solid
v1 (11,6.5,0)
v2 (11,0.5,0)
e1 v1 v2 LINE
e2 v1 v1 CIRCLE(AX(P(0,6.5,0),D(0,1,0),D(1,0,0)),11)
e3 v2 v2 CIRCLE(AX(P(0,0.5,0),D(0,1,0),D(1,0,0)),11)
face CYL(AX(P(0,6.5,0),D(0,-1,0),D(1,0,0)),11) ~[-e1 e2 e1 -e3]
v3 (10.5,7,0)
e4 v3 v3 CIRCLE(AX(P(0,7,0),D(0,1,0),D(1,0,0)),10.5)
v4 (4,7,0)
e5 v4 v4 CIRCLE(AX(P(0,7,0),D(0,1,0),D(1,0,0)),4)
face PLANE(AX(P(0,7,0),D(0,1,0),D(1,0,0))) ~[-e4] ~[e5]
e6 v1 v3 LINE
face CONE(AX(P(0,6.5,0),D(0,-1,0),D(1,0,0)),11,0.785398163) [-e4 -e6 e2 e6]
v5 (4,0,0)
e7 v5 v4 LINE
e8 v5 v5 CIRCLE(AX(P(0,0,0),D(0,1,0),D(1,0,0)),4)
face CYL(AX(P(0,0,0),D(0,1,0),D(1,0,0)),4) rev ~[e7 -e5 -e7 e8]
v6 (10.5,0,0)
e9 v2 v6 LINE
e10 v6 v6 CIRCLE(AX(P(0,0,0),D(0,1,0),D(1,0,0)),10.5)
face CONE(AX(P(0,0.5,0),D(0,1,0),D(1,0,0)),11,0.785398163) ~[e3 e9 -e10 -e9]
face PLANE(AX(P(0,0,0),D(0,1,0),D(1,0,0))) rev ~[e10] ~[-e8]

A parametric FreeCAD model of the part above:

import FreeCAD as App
import Part
import Sketcher

doc = App.newDocument("Part")
body = doc.addObject("PartDesign::Body", "Body")

sketch1 = body.newObject("Sketcher::SketchObject", "Sketch")
sketch1.AttachmentSupport = (doc.getObject("XY_Plane"), [""])
sketch1.MapMode = "FlatFace"
sketch1.addGeometry([
    Part.LineSegment(App.Vector(4, 7, 0), App.Vector(4, 0, 0)),
    Part.LineSegment(App.Vector(4, 0, 0), App.Vector(10.5, 0, 0)),
    Part.LineSegment(App.Vector(10.5, 0, 0), App.Vector(11, 0.5, 0)),
    Part.LineSegment(App.Vector(11, 0.5, 0), App.Vector(11, 6.5, 0)),
    Part.LineSegment(App.Vector(11, 6.5, 0), App.Vector(10.5, 7, 0)),
    Part.LineSegment(App.Vector(10.5, 7, 0), App.Vector(4, 7, 0)),
], False)
sketch1.addConstraint([
    Sketcher.Constraint("Coincident", 0, 2, 1, 1),
    Sketcher.Constraint("Coincident", 1, 2, 2, 1),
    Sketcher.Constraint("Coincident", 2, 2, 3, 1),
    Sketcher.Constraint("Coincident", 3, 2, 4, 1),
    Sketcher.Constraint("Coincident", 4, 2, 5, 1),
    Sketcher.Constraint("Coincident", 5, 2, 0, 1),
    Sketcher.Constraint("Vertical", 0),
    Sketcher.Constraint("Horizontal", 1),
    Sketcher.Constraint("Vertical", 3),
    Sketcher.Constraint("Horizontal", 5),
    Sketcher.Constraint("PointOnObject", 0, 2, -1),
    Sketcher.Constraint("Perpendicular", 2, 4),
    Sketcher.Constraint("Vertical", 1, 2, 4, 2),
    Sketcher.Constraint("Equal", 2, 4),
    Sketcher.Constraint("DistanceY", 0, 2, 0, 1, 7.0),
    Sketcher.Constraint("DistanceX", -1, 1, 0, 2, 4.0),
    Sketcher.Constraint("DistanceX", -1, 1, 2, 2, 11.0),
    Sketcher.Constraint("DistanceY", -1, 1, 2, 2, 0.5),
])
revolution = body.newObject("PartDesign::Revolution", "Revolution")
revolution.Profile = sketch1
revolution.ReferenceAxis = (sketch1, ["V_Axis"])
revolution.Angle = 360

doc.recompute()
